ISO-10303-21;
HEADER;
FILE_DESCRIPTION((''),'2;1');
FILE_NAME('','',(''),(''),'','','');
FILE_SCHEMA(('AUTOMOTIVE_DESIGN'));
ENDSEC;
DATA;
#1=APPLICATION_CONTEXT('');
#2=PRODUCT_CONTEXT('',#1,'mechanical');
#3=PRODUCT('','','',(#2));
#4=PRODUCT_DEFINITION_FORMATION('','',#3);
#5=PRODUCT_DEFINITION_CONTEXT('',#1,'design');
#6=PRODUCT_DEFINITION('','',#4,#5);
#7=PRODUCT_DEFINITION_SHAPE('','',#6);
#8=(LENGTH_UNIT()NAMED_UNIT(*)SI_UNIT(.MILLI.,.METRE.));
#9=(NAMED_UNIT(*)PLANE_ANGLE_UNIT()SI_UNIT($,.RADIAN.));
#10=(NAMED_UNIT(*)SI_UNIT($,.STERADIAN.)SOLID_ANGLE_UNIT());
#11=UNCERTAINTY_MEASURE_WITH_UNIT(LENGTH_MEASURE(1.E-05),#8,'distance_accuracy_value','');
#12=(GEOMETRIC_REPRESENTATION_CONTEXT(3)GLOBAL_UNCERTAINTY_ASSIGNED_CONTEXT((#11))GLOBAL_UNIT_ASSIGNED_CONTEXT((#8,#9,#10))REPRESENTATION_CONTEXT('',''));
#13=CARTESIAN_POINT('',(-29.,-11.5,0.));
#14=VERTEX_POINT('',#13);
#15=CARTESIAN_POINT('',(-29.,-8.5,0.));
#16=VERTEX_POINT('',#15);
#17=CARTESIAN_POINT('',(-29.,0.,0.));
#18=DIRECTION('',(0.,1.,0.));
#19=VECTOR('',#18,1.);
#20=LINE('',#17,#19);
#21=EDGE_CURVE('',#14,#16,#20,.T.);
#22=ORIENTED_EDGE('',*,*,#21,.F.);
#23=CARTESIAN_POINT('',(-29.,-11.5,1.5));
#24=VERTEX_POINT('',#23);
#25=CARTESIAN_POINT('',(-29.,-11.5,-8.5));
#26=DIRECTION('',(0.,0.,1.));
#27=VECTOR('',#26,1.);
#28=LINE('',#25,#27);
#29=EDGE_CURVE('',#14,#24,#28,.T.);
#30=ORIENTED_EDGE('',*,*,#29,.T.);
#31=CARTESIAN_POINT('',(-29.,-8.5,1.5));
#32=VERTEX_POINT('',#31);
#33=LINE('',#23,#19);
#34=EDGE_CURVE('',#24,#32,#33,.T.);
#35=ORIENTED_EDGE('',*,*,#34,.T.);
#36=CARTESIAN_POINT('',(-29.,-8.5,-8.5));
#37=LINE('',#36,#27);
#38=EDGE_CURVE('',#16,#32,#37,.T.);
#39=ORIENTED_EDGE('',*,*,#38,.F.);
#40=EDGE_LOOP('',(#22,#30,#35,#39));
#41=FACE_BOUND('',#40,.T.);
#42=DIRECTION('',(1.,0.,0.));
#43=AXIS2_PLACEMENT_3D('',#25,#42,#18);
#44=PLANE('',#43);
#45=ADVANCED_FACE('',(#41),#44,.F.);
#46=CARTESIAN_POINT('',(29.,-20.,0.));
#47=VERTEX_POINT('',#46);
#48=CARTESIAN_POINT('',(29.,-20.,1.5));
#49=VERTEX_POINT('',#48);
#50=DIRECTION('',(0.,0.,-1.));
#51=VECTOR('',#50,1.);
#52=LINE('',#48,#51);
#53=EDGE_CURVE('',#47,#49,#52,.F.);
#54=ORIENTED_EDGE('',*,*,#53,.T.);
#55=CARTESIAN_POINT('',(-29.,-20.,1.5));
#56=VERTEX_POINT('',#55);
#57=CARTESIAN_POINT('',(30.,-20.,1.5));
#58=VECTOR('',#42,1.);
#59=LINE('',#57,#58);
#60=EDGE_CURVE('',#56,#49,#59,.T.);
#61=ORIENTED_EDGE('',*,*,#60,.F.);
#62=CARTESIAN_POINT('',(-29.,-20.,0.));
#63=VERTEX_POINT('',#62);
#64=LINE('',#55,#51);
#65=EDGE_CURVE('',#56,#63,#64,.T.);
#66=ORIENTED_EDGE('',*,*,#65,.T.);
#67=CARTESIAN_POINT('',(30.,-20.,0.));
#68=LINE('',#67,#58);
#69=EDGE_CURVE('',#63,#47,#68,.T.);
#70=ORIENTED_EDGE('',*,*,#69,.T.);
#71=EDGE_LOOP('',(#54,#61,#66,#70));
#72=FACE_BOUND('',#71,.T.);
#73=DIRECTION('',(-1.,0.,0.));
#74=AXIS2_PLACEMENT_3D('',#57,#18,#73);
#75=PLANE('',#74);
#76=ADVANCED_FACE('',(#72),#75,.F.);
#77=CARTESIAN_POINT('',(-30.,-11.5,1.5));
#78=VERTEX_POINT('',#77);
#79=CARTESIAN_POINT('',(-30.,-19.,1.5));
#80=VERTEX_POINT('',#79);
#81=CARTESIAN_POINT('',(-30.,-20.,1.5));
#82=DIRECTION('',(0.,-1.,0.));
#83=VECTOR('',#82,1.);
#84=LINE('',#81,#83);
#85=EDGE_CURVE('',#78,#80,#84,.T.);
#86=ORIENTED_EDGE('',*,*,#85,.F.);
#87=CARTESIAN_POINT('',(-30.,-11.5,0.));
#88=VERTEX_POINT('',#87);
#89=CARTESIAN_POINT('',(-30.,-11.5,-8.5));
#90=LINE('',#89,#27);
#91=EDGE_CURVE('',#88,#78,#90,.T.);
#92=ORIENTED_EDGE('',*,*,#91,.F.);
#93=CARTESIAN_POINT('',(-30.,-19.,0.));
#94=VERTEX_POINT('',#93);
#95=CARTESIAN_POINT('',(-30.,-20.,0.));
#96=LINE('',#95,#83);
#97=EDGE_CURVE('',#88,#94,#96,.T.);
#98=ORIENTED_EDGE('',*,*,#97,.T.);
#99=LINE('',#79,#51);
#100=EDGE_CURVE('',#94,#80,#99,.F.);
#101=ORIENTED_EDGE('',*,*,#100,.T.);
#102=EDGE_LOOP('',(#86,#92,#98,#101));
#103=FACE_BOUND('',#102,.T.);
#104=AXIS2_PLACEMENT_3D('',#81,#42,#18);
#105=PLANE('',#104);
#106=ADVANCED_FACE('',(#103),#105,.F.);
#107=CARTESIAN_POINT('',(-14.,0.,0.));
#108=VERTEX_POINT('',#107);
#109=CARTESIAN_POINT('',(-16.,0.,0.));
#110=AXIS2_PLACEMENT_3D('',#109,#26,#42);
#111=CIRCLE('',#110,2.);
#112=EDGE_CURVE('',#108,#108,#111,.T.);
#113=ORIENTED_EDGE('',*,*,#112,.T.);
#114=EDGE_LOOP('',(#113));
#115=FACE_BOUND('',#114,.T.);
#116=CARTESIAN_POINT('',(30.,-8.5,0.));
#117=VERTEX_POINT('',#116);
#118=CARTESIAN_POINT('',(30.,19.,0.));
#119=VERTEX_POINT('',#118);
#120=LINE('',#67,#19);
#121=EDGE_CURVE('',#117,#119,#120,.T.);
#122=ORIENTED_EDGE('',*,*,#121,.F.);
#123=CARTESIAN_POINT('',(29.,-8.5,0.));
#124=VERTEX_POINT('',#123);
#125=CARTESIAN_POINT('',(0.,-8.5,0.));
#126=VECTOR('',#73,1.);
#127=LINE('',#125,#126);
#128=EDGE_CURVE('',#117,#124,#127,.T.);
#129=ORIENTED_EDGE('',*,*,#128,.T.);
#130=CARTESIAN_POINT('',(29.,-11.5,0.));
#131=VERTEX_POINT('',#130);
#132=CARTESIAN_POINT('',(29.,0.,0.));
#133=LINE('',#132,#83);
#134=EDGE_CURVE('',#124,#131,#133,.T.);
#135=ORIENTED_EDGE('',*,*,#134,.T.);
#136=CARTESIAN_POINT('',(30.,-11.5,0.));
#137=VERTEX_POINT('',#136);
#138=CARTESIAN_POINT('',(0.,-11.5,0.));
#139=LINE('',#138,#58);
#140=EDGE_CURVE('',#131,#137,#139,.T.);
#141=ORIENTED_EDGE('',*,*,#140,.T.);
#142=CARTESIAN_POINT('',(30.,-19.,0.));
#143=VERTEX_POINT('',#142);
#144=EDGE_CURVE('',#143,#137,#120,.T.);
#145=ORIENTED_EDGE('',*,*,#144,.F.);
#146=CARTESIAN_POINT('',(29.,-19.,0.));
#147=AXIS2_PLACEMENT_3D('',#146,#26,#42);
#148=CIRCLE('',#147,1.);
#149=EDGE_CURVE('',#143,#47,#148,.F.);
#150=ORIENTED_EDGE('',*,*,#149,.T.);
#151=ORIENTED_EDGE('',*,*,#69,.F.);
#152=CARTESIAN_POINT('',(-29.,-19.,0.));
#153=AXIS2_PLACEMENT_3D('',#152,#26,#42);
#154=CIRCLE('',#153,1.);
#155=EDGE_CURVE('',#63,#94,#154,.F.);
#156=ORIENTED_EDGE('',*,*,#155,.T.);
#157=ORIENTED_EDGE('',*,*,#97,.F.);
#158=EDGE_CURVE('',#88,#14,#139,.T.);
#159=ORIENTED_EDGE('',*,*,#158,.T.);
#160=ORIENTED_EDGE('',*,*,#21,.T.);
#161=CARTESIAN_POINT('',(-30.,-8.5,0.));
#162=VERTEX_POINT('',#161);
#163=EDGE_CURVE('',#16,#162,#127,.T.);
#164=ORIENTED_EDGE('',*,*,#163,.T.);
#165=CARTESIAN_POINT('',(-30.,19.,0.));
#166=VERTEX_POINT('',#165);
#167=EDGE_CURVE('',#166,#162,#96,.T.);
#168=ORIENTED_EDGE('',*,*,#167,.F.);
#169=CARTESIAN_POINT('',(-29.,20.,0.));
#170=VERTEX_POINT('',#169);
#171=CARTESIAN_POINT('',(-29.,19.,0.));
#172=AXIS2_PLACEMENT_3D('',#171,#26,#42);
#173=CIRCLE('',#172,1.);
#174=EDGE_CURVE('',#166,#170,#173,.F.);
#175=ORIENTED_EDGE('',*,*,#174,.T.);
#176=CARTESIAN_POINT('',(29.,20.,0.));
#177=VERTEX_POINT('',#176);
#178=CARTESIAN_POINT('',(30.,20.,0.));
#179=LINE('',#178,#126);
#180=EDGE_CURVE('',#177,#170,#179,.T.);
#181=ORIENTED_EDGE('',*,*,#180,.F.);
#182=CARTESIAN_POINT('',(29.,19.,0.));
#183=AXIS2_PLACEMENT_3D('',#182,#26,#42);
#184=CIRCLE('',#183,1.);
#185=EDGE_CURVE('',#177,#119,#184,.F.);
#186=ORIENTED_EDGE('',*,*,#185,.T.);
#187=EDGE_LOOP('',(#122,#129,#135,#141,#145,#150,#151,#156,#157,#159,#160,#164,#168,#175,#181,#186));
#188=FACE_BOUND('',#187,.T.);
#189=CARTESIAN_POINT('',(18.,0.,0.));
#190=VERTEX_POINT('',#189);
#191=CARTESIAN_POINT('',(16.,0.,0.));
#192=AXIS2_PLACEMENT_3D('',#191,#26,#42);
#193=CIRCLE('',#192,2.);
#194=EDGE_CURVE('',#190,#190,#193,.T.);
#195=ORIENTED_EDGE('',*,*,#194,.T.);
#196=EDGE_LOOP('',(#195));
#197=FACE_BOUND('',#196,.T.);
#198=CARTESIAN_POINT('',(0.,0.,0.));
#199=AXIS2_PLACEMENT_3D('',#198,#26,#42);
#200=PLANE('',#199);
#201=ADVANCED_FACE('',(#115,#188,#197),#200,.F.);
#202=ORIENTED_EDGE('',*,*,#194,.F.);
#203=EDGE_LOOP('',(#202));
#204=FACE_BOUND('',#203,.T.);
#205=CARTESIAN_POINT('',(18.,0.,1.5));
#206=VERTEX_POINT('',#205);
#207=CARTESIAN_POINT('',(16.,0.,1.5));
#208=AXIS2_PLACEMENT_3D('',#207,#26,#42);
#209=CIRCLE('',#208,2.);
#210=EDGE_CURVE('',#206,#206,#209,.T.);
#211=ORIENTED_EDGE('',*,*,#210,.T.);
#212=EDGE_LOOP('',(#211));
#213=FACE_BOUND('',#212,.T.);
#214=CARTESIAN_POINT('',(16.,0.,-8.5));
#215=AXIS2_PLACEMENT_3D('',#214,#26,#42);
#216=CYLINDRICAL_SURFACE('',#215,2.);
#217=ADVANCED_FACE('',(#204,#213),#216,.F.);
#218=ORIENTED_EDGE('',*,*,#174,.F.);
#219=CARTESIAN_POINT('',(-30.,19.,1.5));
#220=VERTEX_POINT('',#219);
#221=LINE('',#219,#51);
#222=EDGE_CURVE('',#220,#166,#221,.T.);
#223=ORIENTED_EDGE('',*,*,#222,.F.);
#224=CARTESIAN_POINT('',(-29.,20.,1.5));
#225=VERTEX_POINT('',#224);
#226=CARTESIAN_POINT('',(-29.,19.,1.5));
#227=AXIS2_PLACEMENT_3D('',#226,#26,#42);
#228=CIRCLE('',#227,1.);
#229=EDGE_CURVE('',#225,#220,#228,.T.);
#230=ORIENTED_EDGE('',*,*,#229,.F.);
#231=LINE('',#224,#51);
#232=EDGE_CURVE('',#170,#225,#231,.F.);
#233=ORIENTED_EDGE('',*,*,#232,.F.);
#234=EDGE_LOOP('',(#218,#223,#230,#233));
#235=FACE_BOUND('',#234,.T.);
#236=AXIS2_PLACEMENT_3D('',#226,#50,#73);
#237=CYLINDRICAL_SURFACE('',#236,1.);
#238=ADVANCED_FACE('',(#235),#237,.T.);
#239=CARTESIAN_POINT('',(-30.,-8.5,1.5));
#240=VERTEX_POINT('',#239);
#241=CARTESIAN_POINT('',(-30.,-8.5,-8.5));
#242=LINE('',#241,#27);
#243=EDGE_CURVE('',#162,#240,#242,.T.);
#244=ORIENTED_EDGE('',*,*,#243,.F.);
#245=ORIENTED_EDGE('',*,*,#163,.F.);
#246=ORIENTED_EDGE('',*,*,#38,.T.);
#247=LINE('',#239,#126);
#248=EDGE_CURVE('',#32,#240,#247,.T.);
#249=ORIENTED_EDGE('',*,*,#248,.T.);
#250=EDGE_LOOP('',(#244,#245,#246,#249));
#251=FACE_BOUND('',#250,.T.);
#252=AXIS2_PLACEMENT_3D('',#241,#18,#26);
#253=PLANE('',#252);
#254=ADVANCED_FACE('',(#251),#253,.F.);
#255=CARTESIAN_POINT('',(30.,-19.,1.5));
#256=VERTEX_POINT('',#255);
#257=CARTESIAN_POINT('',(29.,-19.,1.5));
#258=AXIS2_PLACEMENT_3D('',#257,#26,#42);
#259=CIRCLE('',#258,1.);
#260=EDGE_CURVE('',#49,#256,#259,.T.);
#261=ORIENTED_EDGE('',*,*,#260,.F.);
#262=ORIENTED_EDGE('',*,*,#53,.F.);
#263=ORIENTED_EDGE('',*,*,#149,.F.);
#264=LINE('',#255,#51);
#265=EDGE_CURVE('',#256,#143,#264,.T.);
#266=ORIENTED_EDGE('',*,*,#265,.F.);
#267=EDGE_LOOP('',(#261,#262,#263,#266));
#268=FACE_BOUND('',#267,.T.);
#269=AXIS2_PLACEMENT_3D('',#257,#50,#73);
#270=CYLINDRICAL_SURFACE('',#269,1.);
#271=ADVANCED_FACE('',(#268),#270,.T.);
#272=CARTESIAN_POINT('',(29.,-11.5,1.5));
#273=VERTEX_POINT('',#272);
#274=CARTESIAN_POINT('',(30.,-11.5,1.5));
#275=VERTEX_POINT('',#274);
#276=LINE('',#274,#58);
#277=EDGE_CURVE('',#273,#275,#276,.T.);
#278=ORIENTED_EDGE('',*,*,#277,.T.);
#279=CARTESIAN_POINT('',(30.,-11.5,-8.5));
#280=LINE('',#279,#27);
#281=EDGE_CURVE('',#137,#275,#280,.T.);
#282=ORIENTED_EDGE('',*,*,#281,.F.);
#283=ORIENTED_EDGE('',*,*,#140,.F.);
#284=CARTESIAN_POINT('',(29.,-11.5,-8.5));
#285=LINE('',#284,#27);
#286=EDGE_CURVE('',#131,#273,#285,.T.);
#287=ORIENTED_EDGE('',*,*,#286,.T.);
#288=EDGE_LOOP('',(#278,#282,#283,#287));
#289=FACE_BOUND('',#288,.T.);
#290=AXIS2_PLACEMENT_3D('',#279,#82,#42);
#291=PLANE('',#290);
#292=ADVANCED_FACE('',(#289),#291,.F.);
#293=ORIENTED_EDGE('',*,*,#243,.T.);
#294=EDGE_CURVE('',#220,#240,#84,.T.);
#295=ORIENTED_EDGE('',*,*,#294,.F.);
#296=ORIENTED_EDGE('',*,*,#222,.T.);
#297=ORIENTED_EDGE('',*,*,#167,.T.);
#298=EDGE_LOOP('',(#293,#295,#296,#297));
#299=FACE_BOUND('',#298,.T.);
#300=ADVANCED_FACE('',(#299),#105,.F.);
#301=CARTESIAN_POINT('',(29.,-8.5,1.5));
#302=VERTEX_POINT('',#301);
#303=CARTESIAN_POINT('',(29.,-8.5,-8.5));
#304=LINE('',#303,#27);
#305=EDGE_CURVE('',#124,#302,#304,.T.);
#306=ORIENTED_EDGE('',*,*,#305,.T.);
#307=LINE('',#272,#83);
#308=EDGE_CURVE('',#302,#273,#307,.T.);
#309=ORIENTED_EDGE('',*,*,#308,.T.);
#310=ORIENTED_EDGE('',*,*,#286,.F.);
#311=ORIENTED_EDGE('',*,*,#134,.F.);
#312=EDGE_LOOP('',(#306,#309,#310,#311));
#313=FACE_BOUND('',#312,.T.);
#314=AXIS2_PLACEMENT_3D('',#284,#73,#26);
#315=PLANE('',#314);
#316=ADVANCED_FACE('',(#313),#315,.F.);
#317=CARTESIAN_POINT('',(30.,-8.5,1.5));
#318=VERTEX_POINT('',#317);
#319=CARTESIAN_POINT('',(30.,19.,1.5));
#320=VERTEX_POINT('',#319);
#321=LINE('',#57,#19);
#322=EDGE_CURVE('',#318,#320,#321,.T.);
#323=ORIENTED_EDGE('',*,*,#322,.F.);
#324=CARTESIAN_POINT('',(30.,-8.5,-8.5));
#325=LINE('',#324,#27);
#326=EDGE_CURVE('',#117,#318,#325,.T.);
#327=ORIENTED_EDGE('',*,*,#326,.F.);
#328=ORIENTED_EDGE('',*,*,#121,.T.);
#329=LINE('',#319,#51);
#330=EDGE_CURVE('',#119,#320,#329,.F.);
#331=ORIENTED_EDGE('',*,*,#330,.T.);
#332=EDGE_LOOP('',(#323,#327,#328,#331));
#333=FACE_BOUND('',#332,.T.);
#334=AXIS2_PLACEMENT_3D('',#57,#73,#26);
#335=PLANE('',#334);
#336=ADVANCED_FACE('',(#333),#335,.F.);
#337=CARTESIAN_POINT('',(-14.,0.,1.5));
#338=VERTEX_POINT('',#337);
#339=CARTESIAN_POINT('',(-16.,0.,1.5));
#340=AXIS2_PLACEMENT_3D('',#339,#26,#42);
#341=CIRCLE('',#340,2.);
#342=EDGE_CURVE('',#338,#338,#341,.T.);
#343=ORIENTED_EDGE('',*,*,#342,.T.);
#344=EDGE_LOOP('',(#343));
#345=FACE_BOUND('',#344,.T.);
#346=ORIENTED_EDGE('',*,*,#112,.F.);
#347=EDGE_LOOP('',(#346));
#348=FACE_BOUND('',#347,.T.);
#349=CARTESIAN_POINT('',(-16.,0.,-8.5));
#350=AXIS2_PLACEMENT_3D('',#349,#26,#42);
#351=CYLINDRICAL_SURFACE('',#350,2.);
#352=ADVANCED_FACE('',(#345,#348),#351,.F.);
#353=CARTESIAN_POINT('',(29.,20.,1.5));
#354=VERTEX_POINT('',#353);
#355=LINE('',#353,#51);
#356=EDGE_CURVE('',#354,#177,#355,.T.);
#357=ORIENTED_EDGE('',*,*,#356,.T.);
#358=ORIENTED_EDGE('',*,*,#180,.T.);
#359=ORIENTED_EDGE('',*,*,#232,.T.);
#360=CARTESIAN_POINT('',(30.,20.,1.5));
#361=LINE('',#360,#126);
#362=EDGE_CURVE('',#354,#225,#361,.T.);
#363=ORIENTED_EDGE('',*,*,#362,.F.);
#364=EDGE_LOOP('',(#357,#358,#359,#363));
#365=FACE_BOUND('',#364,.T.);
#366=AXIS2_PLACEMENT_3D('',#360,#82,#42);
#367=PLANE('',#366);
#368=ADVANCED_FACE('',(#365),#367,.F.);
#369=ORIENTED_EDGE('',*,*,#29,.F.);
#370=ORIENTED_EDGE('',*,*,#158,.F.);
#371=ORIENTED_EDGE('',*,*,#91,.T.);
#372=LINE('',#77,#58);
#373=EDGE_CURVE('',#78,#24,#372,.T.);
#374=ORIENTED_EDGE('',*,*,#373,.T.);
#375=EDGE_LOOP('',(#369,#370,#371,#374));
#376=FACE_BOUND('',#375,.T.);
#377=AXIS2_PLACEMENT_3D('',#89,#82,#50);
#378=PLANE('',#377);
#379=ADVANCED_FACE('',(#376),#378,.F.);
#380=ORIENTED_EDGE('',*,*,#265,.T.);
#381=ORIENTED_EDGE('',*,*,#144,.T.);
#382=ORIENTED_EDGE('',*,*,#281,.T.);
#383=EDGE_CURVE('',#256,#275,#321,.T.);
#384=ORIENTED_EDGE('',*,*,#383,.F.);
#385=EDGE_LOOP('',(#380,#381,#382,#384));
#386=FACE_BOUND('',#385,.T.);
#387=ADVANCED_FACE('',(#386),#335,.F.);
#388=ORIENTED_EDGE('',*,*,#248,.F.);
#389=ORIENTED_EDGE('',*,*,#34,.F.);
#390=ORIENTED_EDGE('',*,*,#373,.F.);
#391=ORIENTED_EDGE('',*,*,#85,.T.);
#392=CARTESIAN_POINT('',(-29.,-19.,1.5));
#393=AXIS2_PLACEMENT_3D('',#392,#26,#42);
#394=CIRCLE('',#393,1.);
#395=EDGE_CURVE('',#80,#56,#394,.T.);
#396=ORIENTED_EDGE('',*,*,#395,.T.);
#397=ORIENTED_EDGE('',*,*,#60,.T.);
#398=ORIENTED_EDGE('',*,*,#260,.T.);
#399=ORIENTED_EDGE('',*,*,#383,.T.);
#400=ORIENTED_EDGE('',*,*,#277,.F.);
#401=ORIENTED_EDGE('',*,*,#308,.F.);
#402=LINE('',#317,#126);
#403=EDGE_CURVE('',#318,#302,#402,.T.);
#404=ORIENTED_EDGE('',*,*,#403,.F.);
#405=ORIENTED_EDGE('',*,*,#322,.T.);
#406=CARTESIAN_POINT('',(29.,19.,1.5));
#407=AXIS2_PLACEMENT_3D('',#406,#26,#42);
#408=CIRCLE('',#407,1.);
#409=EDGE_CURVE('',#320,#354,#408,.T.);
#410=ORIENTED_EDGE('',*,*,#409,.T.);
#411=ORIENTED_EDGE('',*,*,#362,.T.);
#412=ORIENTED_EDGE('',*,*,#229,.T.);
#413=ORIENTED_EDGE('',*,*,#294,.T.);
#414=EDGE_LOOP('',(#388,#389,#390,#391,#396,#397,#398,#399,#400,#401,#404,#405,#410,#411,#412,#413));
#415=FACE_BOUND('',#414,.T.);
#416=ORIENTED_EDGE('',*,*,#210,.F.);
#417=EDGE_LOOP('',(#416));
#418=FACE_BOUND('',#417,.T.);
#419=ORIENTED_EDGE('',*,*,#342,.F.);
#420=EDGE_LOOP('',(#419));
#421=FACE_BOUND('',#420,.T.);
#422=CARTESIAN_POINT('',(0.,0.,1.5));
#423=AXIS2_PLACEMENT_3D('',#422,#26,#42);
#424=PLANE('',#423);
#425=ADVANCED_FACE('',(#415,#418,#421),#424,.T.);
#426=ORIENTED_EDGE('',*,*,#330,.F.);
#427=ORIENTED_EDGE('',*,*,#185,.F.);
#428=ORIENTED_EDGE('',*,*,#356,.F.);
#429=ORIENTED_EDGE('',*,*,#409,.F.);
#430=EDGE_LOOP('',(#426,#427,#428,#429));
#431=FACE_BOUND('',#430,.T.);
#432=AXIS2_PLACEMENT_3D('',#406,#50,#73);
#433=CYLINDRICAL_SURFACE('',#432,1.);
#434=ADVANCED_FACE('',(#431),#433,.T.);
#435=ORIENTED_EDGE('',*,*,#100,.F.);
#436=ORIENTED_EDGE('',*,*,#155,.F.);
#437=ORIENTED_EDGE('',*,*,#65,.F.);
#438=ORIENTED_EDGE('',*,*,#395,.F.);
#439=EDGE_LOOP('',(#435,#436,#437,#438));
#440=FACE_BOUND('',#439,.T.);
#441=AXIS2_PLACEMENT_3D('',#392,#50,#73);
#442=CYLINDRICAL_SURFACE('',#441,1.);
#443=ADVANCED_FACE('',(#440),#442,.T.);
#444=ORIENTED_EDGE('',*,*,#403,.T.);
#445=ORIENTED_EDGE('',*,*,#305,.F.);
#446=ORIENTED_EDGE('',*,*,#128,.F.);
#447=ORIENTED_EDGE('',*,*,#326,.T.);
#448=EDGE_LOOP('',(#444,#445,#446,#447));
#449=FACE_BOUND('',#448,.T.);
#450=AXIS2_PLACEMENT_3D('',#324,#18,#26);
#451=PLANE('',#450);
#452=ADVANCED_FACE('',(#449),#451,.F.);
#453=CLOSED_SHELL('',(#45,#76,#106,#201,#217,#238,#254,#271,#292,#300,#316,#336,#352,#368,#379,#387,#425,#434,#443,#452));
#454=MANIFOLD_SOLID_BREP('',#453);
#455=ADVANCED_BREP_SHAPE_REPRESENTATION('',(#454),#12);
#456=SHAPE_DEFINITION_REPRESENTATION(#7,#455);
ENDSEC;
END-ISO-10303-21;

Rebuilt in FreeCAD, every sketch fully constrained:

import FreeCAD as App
import Part
import Sketcher
from FreeCAD import Vector
Q = App.Units.Quantity


def edges_at(feature, points):
    """Names of the edges that pass closest to the given points."""
    edges = feature.Shape.Edges
    near = lambda p: min(range(len(edges)), key=lambda i: edges[i].distToShape(Part.Vertex(*p))[0])
    return sorted({f"Edge{near(p) + 1}" for p in points})

doc = App.newDocument("Part")
body = doc.addObject("PartDesign::Body", "Body")

# Sketch on XY plane
sketch1 = body.newObject("Sketcher::SketchObject", "Sketch")
sketch1.AttachmentSupport = (doc.getObject("XY_Plane"), [""])
sketch1.MapMode = "FlatFace"
sketch1.addGeometry([
    Part.LineSegment(Vector(-30, 20, 0), Vector(-30, -20, 0)),
    Part.LineSegment(Vector(-30, -20, 0), Vector(30, -20, 0)),
    Part.LineSegment(Vector(30, -20, 0), Vector(30, 20, 0)),
    Part.LineSegment(Vector(30, 20, 0), Vector(-30, 20, 0)),
], False)
sketch1.addConstraint([
    Sketcher.Constraint("Coincident", 0, 2, 1, 1),
    Sketcher.Constraint("Coincident", 1, 2, 2, 1),
    Sketcher.Constraint("Coincident", 2, 2, 3, 1),
    Sketcher.Constraint("Coincident", 3, 2, 0, 1),
    Sketcher.Constraint("Vertical", 0),
    Sketcher.Constraint("Horizontal", 1),
    Sketcher.Constraint("Vertical", 2),
    Sketcher.Constraint("Horizontal", 3),
    Sketcher.Constraint("Symmetric", 0, 2, 2, 2, -1, 1),
    Sketcher.Constraint("DistanceX", 1, 1, 1, 2, Q("60 mm")),
    Sketcher.Constraint("DistanceY", 0, 2, 0, 1, Q("40 mm")),
])
pad1 = body.newObject("PartDesign::Pad", "Pad")
pad1.Profile = sketch1
pad1.Length = 1.5

# Sketch on XY plane
sketch2 = body.newObject("Sketcher::SketchObject", "Sketch001")
sketch2.AttachmentSupport = (doc.getObject("XY_Plane"), [""])
sketch2.MapMode = "FlatFace"
sketch2.AttachmentOffset = App.Placement(Vector(0, 0, 1.5), App.Rotation())
sketch2.addGeometry([
    Part.Circle(Vector(-16, 0, 0), Vector(0, 0, 1), 2),
    Part.Circle(Vector(16, 0, 0), Vector(0, 0, 1), 2),
], False)
sketch2.addConstraint([
    Sketcher.Constraint("Equal", 0, 1),
    Sketcher.Constraint("Symmetric", 0, 3, 1, 3, -1, 1),
    Sketcher.Constraint("PointOnObject", 0, 3, -1),
    Sketcher.Constraint("Diameter", 0, Q("4 mm")),
    Sketcher.Constraint("DistanceX", 0, 3, -1, 1, Q("16 mm")),
])
pocket1 = body.newObject("PartDesign::Pocket", "Pocket")
pocket1.Profile = sketch2
pocket1.Length = 10

# Sketch on XY plane
sketch3 = body.newObject("Sketcher::SketchObject", "Sketch002")
sketch3.AttachmentSupport = (doc.getObject("XY_Plane"), [""])
sketch3.MapMode = "FlatFace"
sketch3.AttachmentOffset = App.Placement(Vector(0, 0, 1.5), App.Rotation())
sketch3.addGeometry([
    Part.LineSegment(Vector(-30, -8.5, 0), Vector(-30, -11.5, 0)),  # 0
    Part.LineSegment(Vector(-30, -11.5, 0), Vector(-29, -11.5, 0)),  # 1
    Part.LineSegment(Vector(-29, -11.5, 0), Vector(-29, -8.5, 0)),  # 2
    Part.LineSegment(Vector(-29, -8.5, 0), Vector(-30, -8.5, 0)),  # 3
    Part.LineSegment(Vector(29, -8.5, 0), Vector(29, -11.5, 0)),  # 4
    Part.LineSegment(Vector(29, -11.5, 0), Vector(30, -11.5, 0)),  # 5
    Part.LineSegment(Vector(30, -11.5, 0), Vector(30, -8.5, 0)),  # 6
    Part.LineSegment(Vector(30, -8.5, 0), Vector(29, -8.5, 0)),  # 7
], False)
sketch3.addConstraint([
    Sketcher.Constraint("Coincident", 0, 2, 1, 1),
    Sketcher.Constraint("Coincident", 1, 2, 2, 1),
    Sketcher.Constraint("Coincident", 2, 2, 3, 1),
    Sketcher.Constraint("Coincident", 3, 2, 0, 1),
    Sketcher.Constraint("Coincident", 4, 2, 5, 1),
    Sketcher.Constraint("Coincident", 5, 2, 6, 1),
    Sketcher.Constraint("Coincident", 6, 2, 7, 1),
    Sketcher.Constraint("Coincident", 7, 2, 4, 1),
    Sketcher.Constraint("Vertical", 0),
    Sketcher.Constraint("Horizontal", 1),
    Sketcher.Constraint("Vertical", 2),
    Sketcher.Constraint("Horizontal", 3),
    Sketcher.Constraint("Vertical", 4),
    Sketcher.Constraint("Horizontal", 5),
    Sketcher.Constraint("Vertical", 6),
    Sketcher.Constraint("Horizontal", 7),
    Sketcher.Constraint("Symmetric", 1, 2, 4, 2, -2),
    Sketcher.Constraint("Symmetric", 3, 2, 6, 2, -2),
    Sketcher.Constraint("DistanceX", 1, 1, 1, 2, Q("1 mm")),
    Sketcher.Constraint("DistanceY", 0, 2, 0, 1, Q("3 mm")),
    Sketcher.Constraint("DistanceX", 0, 2, -1, 1, Q("30 mm")),
    Sketcher.Constraint("DistanceY", 0, 2, -1, 1, Q("11.5 mm")),
])
pocket2 = body.newObject("PartDesign::Pocket", "Pocket001")
pocket2.Profile = sketch3
pocket2.Length = 10
doc.recompute()

fillet = body.newObject("PartDesign::Fillet", "Fillet")
fillet.Base = (pocket2, edges_at(pocket2, [
    (-30, 20, 0.75),
    (30, 20, 0.75),
    (30, -20, 0.75),
    (-30, -20, 0.75),
]))
fillet.Radius = 1

doc.recompute()
